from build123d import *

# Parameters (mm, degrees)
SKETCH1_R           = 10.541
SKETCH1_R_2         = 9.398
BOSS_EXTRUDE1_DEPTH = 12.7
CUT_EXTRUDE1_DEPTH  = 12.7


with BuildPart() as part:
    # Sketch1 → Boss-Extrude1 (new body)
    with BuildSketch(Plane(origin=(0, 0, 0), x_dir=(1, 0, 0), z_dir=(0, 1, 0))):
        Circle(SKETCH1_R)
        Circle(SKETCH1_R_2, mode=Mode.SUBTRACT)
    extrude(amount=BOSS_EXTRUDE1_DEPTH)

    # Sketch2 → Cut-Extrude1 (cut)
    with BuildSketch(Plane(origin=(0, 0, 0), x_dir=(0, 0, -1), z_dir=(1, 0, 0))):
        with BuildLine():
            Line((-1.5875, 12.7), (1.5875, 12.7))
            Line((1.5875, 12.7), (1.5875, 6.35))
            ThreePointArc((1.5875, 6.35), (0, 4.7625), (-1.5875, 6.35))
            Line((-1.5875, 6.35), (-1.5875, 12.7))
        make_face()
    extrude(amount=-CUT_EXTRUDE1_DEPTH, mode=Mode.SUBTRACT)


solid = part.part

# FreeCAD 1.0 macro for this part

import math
import FreeCAD as App
import Part
import Sketcher
Q = App.Units.Quantity

doc = App.newDocument("Part")
body = doc.addObject("PartDesign::Body", "Body")

# Sketch on XZ plane
sketch1 = doc.addObject("Sketcher::SketchObject", "Sketch")
body.addObject(sketch1)
sketch1.AttachmentSupport = (doc.XZ_Plane, [""])
sketch1.MapMode = "FlatFace"
sketch1.addGeometry(Part.Circle(App.Vector(0, 0, 0), App.Vector(0, 0, 1), 11), False)
sketch1.addGeometry(Part.Circle(App.Vector(0, 0, 0), App.Vector(0, 0, 1), 9), False)
sketch1.addConstraint(Sketcher.Constraint("Coincident", 0, 3, -1, 1))
sketch1.addConstraint(Sketcher.Constraint("Coincident", 1, 3, -1, 1))
sketch1.addConstraint(Sketcher.Constraint("Diameter", 0, Q("0.83 in")))
sketch1.addConstraint(Sketcher.Constraint("Diameter", 1, Q("0.74 in")))
pad1 = doc.addObject("PartDesign::Pad", "Pad")
body.addObject(pad1)
pad1.Profile = sketch1
pad1.Length = Q("0.5 in")
pad1.Reversed = True

# Sketch on YZ plane
sketch2 = doc.addObject("Sketcher::SketchObject", "Sketch001")
body.addObject(sketch2)
sketch2.AttachmentSupport = (doc.YZ_Plane, [""])
sketch2.MapMode = "FlatFace"
sketch2.addGeometry(Part.LineSegment(App.Vector(12.7, -1.6, 0), App.Vector(12.7, 1.6, 0)), False)
sketch2.addGeometry(Part.LineSegment(App.Vector(12.7, 1.6, 0), App.Vector(6.3, 1.6, 0)), False)
sketch2.addGeometry(Part.ArcOfCircle(Part.Circle(App.Vector(6.3, 0, 0), App.Vector(0, 0, 1), 1.6), math.radians(90), math.radians(270)), False)
sketch2.addGeometry(Part.LineSegment(App.Vector(6.3, -1.6, 0), App.Vector(12.7, -1.6, 0)), False)
sketch2.addConstraint(Sketcher.Constraint("Coincident", 0, 2, 1, 1))
sketch2.addConstraint(Sketcher.Constraint("Tangent", 1, 2, 2, 1))
sketch2.addConstraint(Sketcher.Constraint("Tangent", 2, 2, 3, 1))
sketch2.addConstraint(Sketcher.Constraint("Coincident", 3, 2, 0, 1))
sketch2.addConstraint(Sketcher.Constraint("Vertical", 0))
sketch2.addConstraint(Sketcher.Constraint("Horizontal", 1))
sketch2.addConstraint(Sketcher.Constraint("Horizontal", 3))
sketch2.addConstraint(Sketcher.Constraint("PointOnObject", 2, 3, -1))
sketch2.addConstraint(Sketcher.Constraint("Radius", 2, Q("0.0625 in")))
sketch2.addConstraint(Sketcher.Constraint("DistanceX", 1, 2, 1, 1, Q("0.25 in")))
sketch2.addConstraint(Sketcher.Constraint("DistanceX", -1, 1, 0, 2, Q("0.5 in")))
pocket1 = doc.addObject("PartDesign::Pocket", "Pocket")
body.addObject(pocket1)
pocket1.Profile = sketch2
pocket1.Length = Q("0.5 in")

doc.recompute()
